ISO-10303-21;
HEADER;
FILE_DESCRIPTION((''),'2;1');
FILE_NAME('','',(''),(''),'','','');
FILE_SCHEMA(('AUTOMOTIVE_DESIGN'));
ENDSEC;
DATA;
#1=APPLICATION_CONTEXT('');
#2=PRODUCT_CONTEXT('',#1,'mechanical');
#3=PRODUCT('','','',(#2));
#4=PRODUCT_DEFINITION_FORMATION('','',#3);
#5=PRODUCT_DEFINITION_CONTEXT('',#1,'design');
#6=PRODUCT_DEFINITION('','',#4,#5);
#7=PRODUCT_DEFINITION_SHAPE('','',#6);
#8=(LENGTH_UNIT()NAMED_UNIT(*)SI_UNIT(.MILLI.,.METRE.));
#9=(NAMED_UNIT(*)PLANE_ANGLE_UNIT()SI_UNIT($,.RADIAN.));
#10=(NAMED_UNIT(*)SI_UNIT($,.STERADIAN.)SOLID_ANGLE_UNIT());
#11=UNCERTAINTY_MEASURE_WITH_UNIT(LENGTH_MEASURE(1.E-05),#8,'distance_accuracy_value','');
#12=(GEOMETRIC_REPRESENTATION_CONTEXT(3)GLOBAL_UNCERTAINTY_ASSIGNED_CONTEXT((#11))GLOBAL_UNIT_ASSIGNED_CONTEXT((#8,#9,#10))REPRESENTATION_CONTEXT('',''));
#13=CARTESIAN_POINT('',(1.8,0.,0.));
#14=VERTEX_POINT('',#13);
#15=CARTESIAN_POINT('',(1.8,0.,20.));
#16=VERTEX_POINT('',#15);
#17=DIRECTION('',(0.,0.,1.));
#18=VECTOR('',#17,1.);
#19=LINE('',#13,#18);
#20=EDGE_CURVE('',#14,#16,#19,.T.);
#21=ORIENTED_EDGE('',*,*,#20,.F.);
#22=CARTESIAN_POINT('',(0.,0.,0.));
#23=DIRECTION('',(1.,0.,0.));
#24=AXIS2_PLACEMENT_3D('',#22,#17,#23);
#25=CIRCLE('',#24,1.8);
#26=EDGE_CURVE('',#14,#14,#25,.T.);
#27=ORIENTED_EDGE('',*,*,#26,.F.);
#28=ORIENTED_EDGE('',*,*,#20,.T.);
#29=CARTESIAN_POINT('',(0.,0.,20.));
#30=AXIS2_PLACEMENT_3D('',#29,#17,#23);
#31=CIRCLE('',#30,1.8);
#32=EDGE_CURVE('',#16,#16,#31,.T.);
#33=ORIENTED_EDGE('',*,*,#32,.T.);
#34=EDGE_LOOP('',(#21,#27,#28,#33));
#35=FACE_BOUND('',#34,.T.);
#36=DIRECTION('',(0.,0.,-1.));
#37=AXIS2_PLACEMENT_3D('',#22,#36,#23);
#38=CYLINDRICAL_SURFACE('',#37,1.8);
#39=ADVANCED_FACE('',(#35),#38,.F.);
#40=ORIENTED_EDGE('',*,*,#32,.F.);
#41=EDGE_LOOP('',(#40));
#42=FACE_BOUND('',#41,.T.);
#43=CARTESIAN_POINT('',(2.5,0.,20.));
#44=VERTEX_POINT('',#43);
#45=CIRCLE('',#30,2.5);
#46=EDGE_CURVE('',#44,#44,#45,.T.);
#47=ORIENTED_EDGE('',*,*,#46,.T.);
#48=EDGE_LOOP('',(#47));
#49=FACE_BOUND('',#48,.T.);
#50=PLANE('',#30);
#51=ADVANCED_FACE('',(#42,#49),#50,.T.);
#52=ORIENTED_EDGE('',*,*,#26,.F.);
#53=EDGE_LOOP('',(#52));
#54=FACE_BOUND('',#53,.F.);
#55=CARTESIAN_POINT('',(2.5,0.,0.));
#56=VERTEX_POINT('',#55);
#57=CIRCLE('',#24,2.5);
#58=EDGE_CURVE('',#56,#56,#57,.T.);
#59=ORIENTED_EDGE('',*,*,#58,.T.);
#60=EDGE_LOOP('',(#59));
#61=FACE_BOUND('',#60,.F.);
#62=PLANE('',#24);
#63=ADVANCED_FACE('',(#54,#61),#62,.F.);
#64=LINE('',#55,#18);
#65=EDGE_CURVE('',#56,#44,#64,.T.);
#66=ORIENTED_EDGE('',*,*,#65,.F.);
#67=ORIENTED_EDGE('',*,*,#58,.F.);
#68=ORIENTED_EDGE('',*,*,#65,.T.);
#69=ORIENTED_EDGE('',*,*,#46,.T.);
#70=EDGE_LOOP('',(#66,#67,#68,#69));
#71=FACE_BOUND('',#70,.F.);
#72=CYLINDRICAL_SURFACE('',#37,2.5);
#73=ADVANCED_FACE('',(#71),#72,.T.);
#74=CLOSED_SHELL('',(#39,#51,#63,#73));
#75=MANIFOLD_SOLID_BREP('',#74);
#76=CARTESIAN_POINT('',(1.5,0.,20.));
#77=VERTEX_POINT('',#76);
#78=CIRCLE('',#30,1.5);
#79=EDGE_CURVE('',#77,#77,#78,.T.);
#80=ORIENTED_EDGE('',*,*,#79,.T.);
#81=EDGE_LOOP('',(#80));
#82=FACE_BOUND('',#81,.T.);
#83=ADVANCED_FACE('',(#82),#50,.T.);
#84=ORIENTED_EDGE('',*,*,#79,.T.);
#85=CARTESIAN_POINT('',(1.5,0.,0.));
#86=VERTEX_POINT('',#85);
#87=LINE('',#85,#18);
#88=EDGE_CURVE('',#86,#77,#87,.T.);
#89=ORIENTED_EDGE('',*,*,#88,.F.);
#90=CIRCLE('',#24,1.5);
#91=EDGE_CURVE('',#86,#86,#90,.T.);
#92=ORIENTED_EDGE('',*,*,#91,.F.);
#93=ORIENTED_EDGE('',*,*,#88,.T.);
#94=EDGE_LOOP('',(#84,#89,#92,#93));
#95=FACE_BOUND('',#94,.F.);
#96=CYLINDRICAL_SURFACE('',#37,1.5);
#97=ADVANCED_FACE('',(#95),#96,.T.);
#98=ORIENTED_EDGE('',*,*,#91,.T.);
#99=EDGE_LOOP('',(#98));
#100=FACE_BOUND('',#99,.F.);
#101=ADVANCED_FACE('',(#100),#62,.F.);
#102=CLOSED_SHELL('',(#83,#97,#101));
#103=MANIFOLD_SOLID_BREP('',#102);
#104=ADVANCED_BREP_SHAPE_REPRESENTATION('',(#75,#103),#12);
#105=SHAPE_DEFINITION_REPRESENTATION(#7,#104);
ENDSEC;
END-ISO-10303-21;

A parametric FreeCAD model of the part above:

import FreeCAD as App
import Part
import Sketcher
from FreeCAD import Vector
Q = App.Units.Quantity

doc = App.newDocument("Part")
body = doc.addObject("PartDesign::Body", "Body")
body.AllowCompound = True

sketch1 = body.newObject("Sketcher::SketchObject", "Sketch")
sketch1.AttachmentSupport = (doc.getObject("XY_Plane"), [""])
sketch1.MapMode = "FlatFace"
sketch1.addGeometry(Part.Circle(Vector(0, 0, 0), Vector(0, 0, 1), 2.5), False)
sketch1.addGeometry(Part.Circle(Vector(0, 0, 0), Vector(0, 0, 1), 1.8), False)
sketch1.addGeometry(Part.Circle(Vector(0, 0, 0), Vector(0, 0, 1), 1.5), False)
sketch1.addConstraint(Sketcher.Constraint("Coincident", 0, 3, -1, 1))
sketch1.addConstraint(Sketcher.Constraint("Coincident", 1, 3, -1, 1))
sketch1.addConstraint(Sketcher.Constraint("Coincident", 2, 3, -1, 1))
sketch1.addConstraint(Sketcher.Constraint("Diameter", 0, Q("5 mm")))
sketch1.addConstraint(Sketcher.Constraint("Diameter", 2, Q("3 mm")))
sketch1.addConstraint(Sketcher.Constraint("Diameter", 1, Q("3.6 mm")))
pad1 = body.newObject("PartDesign::Pad", "Pad")
pad1.Profile = sketch1
pad1.Length = 20

doc.recompute()
